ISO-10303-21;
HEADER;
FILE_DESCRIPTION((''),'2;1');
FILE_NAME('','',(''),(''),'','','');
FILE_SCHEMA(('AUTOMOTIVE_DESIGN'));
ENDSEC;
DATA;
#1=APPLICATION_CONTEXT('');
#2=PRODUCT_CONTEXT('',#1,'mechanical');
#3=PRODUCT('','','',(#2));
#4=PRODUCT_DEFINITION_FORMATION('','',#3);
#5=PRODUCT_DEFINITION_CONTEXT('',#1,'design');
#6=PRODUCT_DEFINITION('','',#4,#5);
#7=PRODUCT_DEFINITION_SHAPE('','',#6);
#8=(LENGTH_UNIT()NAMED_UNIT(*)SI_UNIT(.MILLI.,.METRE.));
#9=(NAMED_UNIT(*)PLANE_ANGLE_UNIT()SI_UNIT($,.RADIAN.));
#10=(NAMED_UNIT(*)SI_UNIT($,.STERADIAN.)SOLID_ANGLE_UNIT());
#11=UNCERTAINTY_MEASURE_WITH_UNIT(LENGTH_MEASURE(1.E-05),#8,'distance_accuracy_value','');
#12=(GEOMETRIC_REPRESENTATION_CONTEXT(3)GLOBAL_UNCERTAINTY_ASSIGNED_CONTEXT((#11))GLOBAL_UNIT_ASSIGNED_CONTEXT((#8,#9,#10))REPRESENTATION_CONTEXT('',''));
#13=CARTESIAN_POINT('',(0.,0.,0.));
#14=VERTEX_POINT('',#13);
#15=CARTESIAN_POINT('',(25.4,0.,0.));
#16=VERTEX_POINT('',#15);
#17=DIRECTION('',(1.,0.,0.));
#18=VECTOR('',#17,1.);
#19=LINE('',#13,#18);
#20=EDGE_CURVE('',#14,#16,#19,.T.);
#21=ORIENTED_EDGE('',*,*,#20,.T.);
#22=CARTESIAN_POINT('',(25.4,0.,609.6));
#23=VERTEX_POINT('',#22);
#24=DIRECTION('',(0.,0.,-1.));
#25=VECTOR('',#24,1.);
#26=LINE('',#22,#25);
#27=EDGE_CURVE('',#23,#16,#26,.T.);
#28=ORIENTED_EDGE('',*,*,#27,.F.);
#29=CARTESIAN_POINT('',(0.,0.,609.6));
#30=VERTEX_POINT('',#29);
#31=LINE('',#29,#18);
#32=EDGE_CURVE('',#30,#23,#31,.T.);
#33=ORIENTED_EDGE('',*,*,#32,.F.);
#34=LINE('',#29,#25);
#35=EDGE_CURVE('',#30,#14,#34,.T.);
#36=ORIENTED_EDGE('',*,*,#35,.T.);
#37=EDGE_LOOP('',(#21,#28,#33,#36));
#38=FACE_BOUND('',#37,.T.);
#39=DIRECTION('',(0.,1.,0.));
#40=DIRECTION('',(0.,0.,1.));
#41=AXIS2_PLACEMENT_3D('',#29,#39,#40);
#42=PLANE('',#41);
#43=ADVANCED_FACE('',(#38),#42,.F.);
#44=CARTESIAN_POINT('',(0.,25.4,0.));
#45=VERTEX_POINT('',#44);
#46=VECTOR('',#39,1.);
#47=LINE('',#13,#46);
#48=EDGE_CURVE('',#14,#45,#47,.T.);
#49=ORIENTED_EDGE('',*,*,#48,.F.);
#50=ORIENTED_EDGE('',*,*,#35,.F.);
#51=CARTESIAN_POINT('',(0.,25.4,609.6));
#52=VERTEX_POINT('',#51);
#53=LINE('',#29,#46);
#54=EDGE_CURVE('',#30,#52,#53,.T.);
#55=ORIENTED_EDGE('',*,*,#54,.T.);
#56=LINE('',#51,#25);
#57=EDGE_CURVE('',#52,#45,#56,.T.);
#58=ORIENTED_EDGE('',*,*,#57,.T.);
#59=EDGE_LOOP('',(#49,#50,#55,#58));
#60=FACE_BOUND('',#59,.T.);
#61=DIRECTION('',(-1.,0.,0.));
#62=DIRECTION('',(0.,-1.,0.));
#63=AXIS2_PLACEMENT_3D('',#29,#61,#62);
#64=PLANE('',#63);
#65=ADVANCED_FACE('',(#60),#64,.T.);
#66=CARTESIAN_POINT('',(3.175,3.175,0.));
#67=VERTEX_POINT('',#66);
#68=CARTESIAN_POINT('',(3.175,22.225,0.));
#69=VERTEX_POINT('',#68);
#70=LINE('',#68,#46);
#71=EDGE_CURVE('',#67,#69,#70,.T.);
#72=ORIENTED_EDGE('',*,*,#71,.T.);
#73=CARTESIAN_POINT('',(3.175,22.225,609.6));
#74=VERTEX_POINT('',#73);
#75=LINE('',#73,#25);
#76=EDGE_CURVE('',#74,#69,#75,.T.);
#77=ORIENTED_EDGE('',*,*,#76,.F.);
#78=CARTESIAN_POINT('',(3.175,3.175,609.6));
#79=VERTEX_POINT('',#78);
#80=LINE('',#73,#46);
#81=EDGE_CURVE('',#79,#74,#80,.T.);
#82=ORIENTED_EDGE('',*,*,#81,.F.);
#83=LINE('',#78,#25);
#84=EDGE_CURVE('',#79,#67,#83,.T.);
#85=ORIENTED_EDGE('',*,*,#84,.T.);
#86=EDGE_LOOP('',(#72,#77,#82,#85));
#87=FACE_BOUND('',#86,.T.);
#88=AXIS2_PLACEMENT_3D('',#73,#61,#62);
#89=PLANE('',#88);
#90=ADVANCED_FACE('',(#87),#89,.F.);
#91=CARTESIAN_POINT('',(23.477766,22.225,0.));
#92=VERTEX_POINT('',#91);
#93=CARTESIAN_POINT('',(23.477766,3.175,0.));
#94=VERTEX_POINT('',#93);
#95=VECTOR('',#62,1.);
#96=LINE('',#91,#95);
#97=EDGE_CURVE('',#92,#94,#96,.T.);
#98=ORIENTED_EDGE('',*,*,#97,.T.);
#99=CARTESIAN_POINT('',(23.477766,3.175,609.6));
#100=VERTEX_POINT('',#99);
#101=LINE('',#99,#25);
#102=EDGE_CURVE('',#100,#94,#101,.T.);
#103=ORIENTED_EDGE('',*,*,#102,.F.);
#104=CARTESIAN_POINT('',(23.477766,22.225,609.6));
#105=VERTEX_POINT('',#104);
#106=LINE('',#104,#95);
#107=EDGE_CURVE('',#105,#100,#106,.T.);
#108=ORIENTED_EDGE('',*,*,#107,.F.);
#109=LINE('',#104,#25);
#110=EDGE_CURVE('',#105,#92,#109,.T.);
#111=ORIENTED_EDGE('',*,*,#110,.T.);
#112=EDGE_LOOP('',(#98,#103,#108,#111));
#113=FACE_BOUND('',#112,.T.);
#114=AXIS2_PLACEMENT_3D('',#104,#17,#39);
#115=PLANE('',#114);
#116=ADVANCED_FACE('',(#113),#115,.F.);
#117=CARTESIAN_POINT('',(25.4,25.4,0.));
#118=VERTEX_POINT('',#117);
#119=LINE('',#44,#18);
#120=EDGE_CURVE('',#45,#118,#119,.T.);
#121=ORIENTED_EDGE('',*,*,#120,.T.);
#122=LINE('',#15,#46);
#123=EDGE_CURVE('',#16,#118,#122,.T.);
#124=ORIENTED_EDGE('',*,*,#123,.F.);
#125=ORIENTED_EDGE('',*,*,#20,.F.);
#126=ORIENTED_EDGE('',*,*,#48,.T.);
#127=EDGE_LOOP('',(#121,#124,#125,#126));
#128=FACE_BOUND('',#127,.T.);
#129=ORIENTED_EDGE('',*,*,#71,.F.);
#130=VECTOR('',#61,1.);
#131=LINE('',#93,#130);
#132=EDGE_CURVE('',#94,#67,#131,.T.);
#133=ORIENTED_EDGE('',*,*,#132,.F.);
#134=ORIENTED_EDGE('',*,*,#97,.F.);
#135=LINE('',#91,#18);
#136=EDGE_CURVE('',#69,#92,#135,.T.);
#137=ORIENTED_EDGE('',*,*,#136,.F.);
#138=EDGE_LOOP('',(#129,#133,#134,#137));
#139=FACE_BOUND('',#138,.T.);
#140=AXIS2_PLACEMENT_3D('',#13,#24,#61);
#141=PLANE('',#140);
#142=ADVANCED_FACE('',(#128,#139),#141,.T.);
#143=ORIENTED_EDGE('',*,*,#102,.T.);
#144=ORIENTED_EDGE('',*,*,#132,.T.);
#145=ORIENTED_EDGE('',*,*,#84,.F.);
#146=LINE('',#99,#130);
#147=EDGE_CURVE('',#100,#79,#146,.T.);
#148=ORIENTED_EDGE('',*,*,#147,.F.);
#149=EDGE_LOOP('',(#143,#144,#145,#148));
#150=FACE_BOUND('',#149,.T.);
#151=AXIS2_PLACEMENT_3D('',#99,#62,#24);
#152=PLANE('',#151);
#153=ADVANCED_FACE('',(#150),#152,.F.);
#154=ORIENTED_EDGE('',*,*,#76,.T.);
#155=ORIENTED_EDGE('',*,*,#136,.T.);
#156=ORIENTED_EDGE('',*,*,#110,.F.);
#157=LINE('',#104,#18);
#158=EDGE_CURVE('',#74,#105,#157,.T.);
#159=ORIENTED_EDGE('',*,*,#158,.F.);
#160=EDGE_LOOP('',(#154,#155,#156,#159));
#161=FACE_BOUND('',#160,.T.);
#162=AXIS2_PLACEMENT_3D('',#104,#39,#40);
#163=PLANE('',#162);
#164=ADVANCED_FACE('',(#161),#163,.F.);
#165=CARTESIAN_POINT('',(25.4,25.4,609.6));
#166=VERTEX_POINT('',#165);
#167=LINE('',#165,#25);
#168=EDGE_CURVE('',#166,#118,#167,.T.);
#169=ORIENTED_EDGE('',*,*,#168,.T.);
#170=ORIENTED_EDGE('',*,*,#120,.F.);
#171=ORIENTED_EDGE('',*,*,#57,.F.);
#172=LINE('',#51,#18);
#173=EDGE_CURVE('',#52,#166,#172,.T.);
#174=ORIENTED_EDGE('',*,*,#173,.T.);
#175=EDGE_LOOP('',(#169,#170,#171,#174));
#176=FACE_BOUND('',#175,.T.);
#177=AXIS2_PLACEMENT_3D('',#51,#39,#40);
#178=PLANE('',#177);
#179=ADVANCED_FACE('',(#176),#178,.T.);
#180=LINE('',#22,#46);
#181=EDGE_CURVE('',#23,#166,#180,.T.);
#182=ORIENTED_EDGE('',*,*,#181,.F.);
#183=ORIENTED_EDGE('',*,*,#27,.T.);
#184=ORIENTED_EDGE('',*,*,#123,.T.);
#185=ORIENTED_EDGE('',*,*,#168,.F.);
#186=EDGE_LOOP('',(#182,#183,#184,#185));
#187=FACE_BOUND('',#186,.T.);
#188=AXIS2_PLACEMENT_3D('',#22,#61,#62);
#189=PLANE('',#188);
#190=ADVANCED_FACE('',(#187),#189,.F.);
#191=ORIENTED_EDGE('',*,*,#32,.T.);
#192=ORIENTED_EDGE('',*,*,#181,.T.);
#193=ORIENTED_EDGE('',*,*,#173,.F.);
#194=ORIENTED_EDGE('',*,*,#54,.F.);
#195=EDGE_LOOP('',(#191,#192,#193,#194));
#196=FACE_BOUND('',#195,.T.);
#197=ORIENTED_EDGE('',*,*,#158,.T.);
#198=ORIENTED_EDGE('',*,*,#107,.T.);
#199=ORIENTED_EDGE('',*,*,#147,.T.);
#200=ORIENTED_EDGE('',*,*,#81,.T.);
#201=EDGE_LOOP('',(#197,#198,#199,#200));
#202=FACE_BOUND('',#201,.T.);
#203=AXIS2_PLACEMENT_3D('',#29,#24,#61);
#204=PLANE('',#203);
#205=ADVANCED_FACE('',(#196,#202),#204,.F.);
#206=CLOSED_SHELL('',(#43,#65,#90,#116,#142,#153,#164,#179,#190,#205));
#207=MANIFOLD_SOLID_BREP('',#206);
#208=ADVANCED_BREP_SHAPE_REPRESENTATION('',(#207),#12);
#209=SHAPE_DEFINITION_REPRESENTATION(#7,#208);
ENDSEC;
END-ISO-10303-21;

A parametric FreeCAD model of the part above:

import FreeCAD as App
import Part
import Sketcher
from FreeCAD import Vector
Q = App.Units.Quantity

doc = App.newDocument("Part")
body = doc.addObject("PartDesign::Body", "Body")

# Sketch on XY plane
sketch1 = doc.addObject("Sketcher::SketchObject", "Sketch")
body.addObject(sketch1)
sketch1.AttachmentSupport = (doc.XY_Plane, [""])
sketch1.MapMode = "FlatFace"
sketch1.addGeometry(Part.LineSegment(Vector(0, 25.4, 0), Vector(0, 0, 0)), False)
sketch1.addGeometry(Part.LineSegment(Vector(0, 0, 0), Vector(25.4, 0, 0)), False)
sketch1.addGeometry(Part.LineSegment(Vector(25.4, 0, 0), Vector(25.4, 25.4, 0)), False)
sketch1.addGeometry(Part.LineSegment(Vector(25.4, 25.4, 0), Vector(0, 25.4, 0)), False)
sketch1.addConstraint(Sketcher.Constraint("Coincident", 0, 2, 1, 1))
sketch1.addConstraint(Sketcher.Constraint("Coincident", 1, 2, 2, 1))
sketch1.addConstraint(Sketcher.Constraint("Coincident", 2, 2, 3, 1))
sketch1.addConstraint(Sketcher.Constraint("Coincident", 3, 2, 0, 1))
sketch1.addConstraint(Sketcher.Constraint("Vertical", 0))
sketch1.addConstraint(Sketcher.Constraint("Horizontal", 1))
sketch1.addConstraint(Sketcher.Constraint("Vertical", 2))
sketch1.addConstraint(Sketcher.Constraint("Horizontal", 3))
sketch1.addConstraint(Sketcher.Constraint("Coincident", 0, 2, -1, 1))
sketch1.addConstraint(Sketcher.Constraint("Equal", 3, 0))
sketch1.addConstraint(Sketcher.Constraint("DistanceX", 1, 1, 1, 2, Q("1 in")))
pad1 = doc.addObject("PartDesign::Pad", "Pad")
body.addObject(pad1)
pad1.Profile = sketch1
pad1.Length = Q("24 in")

# Sketch on XY plane
sketch2 = doc.addObject("Sketcher::SketchObject", "Sketch001")
body.addObject(sketch2)
sketch2.AttachmentSupport = (doc.XY_Plane, [""])
sketch2.MapMode = "FlatFace"
sketch2.addGeometry(Part.LineSegment(Vector(23.477766, 22.225, 0), Vector(23.477766, 3.175, 0)), False)
sketch2.addGeometry(Part.LineSegment(Vector(23.477766, 3.175, 0), Vector(3.175, 3.175, 0)), False)
sketch2.addGeometry(Part.LineSegment(Vector(3.175, 3.175, 0), Vector(3.175, 22.225, 0)), False)
sketch2.addGeometry(Part.LineSegment(Vector(3.175, 22.225, 0), Vector(23.477766, 22.225, 0)), False)
sketch2.addConstraint(Sketcher.Constraint("Coincident", 0, 2, 1, 1))
sketch2.addConstraint(Sketcher.Constraint("Coincident", 1, 2, 2, 1))
sketch2.addConstraint(Sketcher.Constraint("Coincident", 2, 2, 3, 1))
sketch2.addConstraint(Sketcher.Constraint("Coincident", 3, 2, 0, 1))
sketch2.addConstraint(Sketcher.Constraint("Vertical", 0))
sketch2.addConstraint(Sketcher.Constraint("Horizontal", 1))
sketch2.addConstraint(Sketcher.Constraint("Vertical", 2))
sketch2.addConstraint(Sketcher.Constraint("Horizontal", 3))
sketch2.addConstraint(Sketcher.Constraint("DistanceY", 0, 2, 0, 1, Q("0.75 in")))
sketch2.addConstraint(Sketcher.Constraint("DistanceY", -1, 1, 0, 2, Q("0.125 in")))
sketch2.addConstraint(Sketcher.Constraint("DistanceX", -1, 1, 1, 2, Q("0.125 in")))
sketch2.addConstraint(Sketcher.Constraint("DistanceX", 1, 2, 1, 1, Q("20.302766 mm")))
pocket1 = doc.addObject("PartDesign::Pocket", "Pocket")
body.addObject(pocket1)
pocket1.Profile = sketch2
pocket1.Type = "ThroughAll"
pocket1.Reversed = True

doc.recompute()
